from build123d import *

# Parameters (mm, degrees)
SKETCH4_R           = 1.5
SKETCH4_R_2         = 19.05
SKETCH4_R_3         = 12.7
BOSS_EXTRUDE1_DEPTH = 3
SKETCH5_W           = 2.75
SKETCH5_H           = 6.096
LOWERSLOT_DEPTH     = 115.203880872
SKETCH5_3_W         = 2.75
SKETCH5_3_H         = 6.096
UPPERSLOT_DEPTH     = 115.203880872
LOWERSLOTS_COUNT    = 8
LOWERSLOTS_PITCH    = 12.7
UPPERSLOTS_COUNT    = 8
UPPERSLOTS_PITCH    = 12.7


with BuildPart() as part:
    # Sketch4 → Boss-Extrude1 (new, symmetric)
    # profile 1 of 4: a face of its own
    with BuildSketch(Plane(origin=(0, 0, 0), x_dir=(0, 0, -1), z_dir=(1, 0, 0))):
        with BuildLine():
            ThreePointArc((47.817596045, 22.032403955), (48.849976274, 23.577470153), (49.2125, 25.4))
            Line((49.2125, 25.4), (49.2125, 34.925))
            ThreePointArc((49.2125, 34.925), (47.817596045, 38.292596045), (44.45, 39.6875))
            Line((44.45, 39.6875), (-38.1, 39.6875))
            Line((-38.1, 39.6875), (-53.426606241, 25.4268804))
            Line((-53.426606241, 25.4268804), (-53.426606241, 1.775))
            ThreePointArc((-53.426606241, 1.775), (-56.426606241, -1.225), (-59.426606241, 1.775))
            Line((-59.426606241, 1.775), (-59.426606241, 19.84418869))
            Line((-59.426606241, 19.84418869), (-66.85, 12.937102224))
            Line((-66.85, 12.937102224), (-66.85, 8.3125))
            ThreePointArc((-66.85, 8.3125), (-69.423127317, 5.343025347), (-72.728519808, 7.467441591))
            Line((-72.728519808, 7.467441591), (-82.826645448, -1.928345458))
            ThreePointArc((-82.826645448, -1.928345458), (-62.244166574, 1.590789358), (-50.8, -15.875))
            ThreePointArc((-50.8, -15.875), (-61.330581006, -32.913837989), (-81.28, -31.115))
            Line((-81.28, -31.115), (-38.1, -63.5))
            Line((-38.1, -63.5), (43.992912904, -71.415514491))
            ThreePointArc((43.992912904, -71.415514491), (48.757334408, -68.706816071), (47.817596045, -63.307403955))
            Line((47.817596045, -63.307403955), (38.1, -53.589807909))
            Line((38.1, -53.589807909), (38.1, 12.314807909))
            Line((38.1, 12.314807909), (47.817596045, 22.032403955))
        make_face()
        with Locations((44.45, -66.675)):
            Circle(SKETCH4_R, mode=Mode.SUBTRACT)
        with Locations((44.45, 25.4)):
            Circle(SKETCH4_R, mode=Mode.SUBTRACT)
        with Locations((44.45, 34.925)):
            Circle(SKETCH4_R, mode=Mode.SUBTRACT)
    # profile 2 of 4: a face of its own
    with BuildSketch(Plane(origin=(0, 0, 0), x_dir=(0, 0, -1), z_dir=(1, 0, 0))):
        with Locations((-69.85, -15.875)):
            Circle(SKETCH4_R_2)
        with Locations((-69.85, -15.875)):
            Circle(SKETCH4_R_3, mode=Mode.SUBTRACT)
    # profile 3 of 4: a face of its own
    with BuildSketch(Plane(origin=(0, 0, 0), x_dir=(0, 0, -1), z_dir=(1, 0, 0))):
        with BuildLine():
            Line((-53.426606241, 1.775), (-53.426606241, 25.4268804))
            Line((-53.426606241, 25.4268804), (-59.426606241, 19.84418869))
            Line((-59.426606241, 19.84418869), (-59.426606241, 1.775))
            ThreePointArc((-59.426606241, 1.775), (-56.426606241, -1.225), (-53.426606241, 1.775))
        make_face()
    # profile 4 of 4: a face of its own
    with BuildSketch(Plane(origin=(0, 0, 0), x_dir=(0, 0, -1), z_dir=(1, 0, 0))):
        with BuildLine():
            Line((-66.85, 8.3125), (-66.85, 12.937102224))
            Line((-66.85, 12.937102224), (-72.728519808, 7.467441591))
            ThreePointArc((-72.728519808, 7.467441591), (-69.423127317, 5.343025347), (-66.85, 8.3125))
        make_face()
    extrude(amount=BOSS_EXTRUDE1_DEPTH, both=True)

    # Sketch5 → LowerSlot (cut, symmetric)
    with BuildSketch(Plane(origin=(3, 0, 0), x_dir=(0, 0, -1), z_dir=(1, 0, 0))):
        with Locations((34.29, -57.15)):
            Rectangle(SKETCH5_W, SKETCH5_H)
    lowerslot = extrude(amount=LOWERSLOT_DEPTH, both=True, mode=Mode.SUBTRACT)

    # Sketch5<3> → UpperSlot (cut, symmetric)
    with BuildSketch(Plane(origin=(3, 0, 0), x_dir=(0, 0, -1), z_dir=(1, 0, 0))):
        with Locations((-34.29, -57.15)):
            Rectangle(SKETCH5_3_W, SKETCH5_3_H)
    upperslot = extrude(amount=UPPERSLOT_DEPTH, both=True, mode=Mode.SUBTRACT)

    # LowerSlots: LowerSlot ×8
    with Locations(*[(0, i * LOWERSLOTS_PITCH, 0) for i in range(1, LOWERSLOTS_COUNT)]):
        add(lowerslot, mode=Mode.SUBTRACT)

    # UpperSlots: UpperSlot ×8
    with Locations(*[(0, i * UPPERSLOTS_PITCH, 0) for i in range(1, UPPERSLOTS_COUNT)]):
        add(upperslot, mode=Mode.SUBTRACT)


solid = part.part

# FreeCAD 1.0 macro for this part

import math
import FreeCAD as App
import Part
import Sketcher
Q = App.Units.Quantity

doc = App.newDocument("Part")
body = doc.addObject("PartDesign::Body", "Body")

# Sketch on YZ plane
sketch1 = doc.addObject("Sketcher::SketchObject", "Sketch")
body.addObject(sketch1)
sketch1.AttachmentSupport = (doc.YZ_Plane, [""])
sketch1.MapMode = "FlatFace"
sketch1.addGeometry(Part.ArcOfCircle(Part.Circle(App.Vector(25.4, -44.5, 0), App.Vector(0, 0, 1), 4.8), math.radians(-135), math.radians(-90)), False)
sketch1.addGeometry(Part.LineSegment(App.Vector(25.4, -49.2, 0), App.Vector(34.9, -49.2, 0)), False)
sketch1.addGeometry(Part.ArcOfCircle(Part.Circle(App.Vector(34.9, -44.4, 0), App.Vector(0, 0, 1), 4.8), math.radians(-90), math.radians(0)), False)
sketch1.addGeometry(Part.LineSegment(App.Vector(39.7, -44.5, 0), App.Vector(39.7, 38.1, 0)), False)
sketch1.addGeometry(Part.LineSegment(App.Vector(39.7, 38.1, 0), App.Vector(25.4, 53.4, 0)), False)
sketch1.addGeometry(Part.LineSegment(App.Vector(25.4, 53.4, 0), App.Vector(19.8, 59.4, 0)), False)
sketch1.addGeometry(Part.LineSegment(App.Vector(19.8, 59.4, 0), App.Vector(12.9, 66.8, 0)), False)
sketch1.addGeometry(Part.LineSegment(App.Vector(12.9, 66.8, 0), App.Vector(7.5, 72.7, 0)), False)
sketch1.addGeometry(Part.LineSegment(App.Vector(7.5, 72.7, 0), App.Vector(-1.9, 82.8, 0)), False)
sketch1.addGeometry(Part.ArcOfCircle(Part.Circle(App.Vector(-15.9, 69.8, 0), App.Vector(0, 0, 1), 19.1), math.radians(43), math.radians(143)), False)
sketch1.addGeometry(Part.LineSegment(App.Vector(-31.1, 81.3, 0), App.Vector(-63.5, 38.1, 0)), False)
sketch1.addGeometry(Part.LineSegment(App.Vector(-63.5, 38.1, 0), App.Vector(-71.4, -44, 0)), False)
sketch1.addGeometry(Part.ArcOfCircle(Part.Circle(App.Vector(-66.7, -44.5, 0), App.Vector(0, 0, 1), 4.8), math.radians(174), math.radians(315)), False)
sketch1.addGeometry(Part.LineSegment(App.Vector(-63.3, -47.8, 0), App.Vector(-53.6, -38.1, 0)), False)
sketch1.addGeometry(Part.LineSegment(App.Vector(-53.6, -38.1, 0), App.Vector(12.3, -38.1, 0)), False)
sketch1.addGeometry(Part.LineSegment(App.Vector(12.3, -38.1, 0), App.Vector(22, -47.8, 0)), False)
sketch1.addGeometry(Part.Circle(App.Vector(-66.7, -44.5, 0), App.Vector(0, 0, 1), 1.5), False)
sketch1.addGeometry(Part.Circle(App.Vector(25.4, -44.5, 0), App.Vector(0, 0, 1), 1.5), False)
sketch1.addGeometry(Part.Circle(App.Vector(34.9, -44.5, 0), App.Vector(0, 0, 1), 1.5), False)
sketch1.addGeometry(Part.Circle(App.Vector(-15.9, 69.8, 0), App.Vector(0, 0, 1), 12.7), False)
sketch1.addConstraint(Sketcher.Constraint("Tangent", 0, 2, 1, 1))
sketch1.addConstraint(Sketcher.Constraint("Tangent", 1, 2, 2, 1))
sketch1.addConstraint(Sketcher.Constraint("Tangent", 2, 2, 3, 1))
sketch1.addConstraint(Sketcher.Constraint("Coincident", 3, 2, 4, 1))
sketch1.addConstraint(Sketcher.Constraint("Coincident", 4, 2, 5, 1))
sketch1.addConstraint(Sketcher.Constraint("Coincident", 5, 2, 6, 1))
sketch1.addConstraint(Sketcher.Constraint("Coincident", 6, 2, 7, 1))
sketch1.addConstraint(Sketcher.Constraint("Coincident", 7, 2, 8, 1))
sketch1.addConstraint(Sketcher.Constraint("Tangent", 8, 2, 9, 1))
sketch1.addConstraint(Sketcher.Constraint("Tangent", 9, 2, 10, 1))
sketch1.addConstraint(Sketcher.Constraint("Coincident", 10, 2, 11, 1))
sketch1.addConstraint(Sketcher.Constraint("Tangent", 11, 2, 12, 1))
sketch1.addConstraint(Sketcher.Constraint("Tangent", 12, 2, 13, 1))
sketch1.addConstraint(Sketcher.Constraint("Coincident", 13, 2, 14, 1))
sketch1.addConstraint(Sketcher.Constraint("Coincident", 14, 2, 15, 1))
sketch1.addConstraint(Sketcher.Constraint("Tangent", 15, 2, 0, 1))
sketch1.addConstraint(Sketcher.Constraint("Horizontal", 1))
sketch1.addConstraint(Sketcher.Constraint("Vertical", 3))
sketch1.addConstraint(Sketcher.Constraint("Horizontal", 14))
sketch1.addConstraint(Sketcher.Constraint("Coincident", 16, 3, 12, 3))
sketch1.addConstraint(Sketcher.Constraint("Coincident", 17, 3, 0, 3))
sketch1.addConstraint(Sketcher.Constraint("Coincident", 18, 3, 2, 3))
sketch1.addConstraint(Sketcher.Constraint("Coincident", 19, 3, 9, 3))
sketch1.addConstraint(Sketcher.Constraint("Equal", 0, 2))
sketch1.addConstraint(Sketcher.Constraint("Equal", 2, 12))
sketch1.addConstraint(Sketcher.Constraint("Equal", 16, 17))
sketch1.addConstraint(Sketcher.Constraint("Equal", 17, 18))
sketch1.addConstraint(Sketcher.Constraint("Parallel", 4, 5))
sketch1.addConstraint(Sketcher.Constraint("Parallel", 5, 6))
sketch1.addConstraint(Sketcher.Constraint("Parallel", 6, 7))
sketch1.addConstraint(Sketcher.Constraint("Parallel", 7, 8))
sketch1.addConstraint(Sketcher.Constraint("Perpendicular", 13, 15))
sketch1.addConstraint(Sketcher.Constraint("Horizontal", 2, 3, 12, 3))
sketch1.addConstraint(Sketcher.Constraint("Horizontal", 3, 2, 10, 2))
sketch1.addConstraint(Sketcher.Constraint("Horizontal", 12, 2, 15, 2))
sketch1.addConstraint(Sketcher.Constraint("Diameter", 19, Q("1 in")))
sketch1.addConstraint(Sketcher.Constraint("Radius", 9, Q("0.75 in")))
sketch1.addConstraint(Sketcher.Constraint("DistanceX", -1, 1, 0, 3, Q("1 in")))
sketch1.addConstraint(Sketcher.Constraint("Radius", 0, Q("0.1875 in")))
sketch1.addConstraint(Sketcher.Constraint("DistanceX", 9, 3, 2, 3, Q("2 in")))
sketch1.addConstraint(Sketcher.Constraint("DistanceX", 12, 3, 2, 3, Q("4 in")))
sketch1.addConstraint(Sketcher.Constraint("DistanceY", 13, 2, 10, 2, Q("3 in")))
sketch1.addConstraint(Sketcher.Constraint("DistanceY", 3, 1, 3, 2, Q("3.25 in")))
sketch1.addConstraint(Sketcher.Constraint("DistanceY", -1, 1, 3, 2, Q("1.5 in")))
sketch1.addConstraint(Sketcher.Constraint("DistanceY", -1, 1, 9, 2, Q("3.2 in")))
sketch1.addConstraint(Sketcher.Constraint("DistanceX", 10, 2, -1, 1, Q("2.5 in")))
sketch1.addConstraint(Sketcher.Constraint("DistanceY", 0, 3, 9, 3, Q("4.5 in")))
sketch1.addConstraint(Sketcher.Constraint("Diameter", 16, 3.0))
sketch1.addConstraint(Sketcher.Constraint("DistanceY", -1, 1, 6, 2, 66.85))
sketch1.addConstraint(Sketcher.Constraint("DistanceY", 4, 2, 5, 2, 6.0))
sketch1.addConstraint(Sketcher.Constraint("Distance", 7, 8.029582))
sketch1.addConstraint(Sketcher.Constraint("DistanceX", -1, 1, 4, 2, 25.42688))
pad1 = doc.addObject("PartDesign::Pad", "Pad")
body.addObject(pad1)
pad1.Profile = sketch1
pad1.Length = 6
pad1.Midplane = True

# Sketch on YZ plane
sketch2 = doc.addObject("Sketcher::SketchObject", "Sketch001")
body.addObject(sketch2)
sketch2.AttachmentSupport = (doc.YZ_Plane, [""])
sketch2.MapMode = "FlatFace"
sketch2.AttachmentOffset = App.Placement(App.Vector(0, 0, 3), App.Rotation())
sketch2.addGeometry(Part.LineSegment(App.Vector(-54.1, -32.9, 0), App.Vector(-60.2, -32.9, 0)), False)
sketch2.addGeometry(Part.LineSegment(App.Vector(-60.2, -32.9, 0), App.Vector(-60.2, -35.7, 0)), False)
sketch2.addGeometry(Part.LineSegment(App.Vector(-60.2, -35.7, 0), App.Vector(-54.1, -35.7, 0)), False)
sketch2.addGeometry(Part.LineSegment(App.Vector(-54.1, -35.7, 0), App.Vector(-54.1, -32.9, 0)), False)
sketch2.addConstraint(Sketcher.Constraint("Coincident", 0, 2, 1, 1))
sketch2.addConstraint(Sketcher.Constraint("Coincident", 1, 2, 2, 1))
sketch2.addConstraint(Sketcher.Constraint("Coincident", 2, 2, 3, 1))
sketch2.addConstraint(Sketcher.Constraint("Coincident", 3, 2, 0, 1))
sketch2.addConstraint(Sketcher.Constraint("Horizontal", 0))
sketch2.addConstraint(Sketcher.Constraint("Vertical", 1))
sketch2.addConstraint(Sketcher.Constraint("Horizontal", 2))
sketch2.addConstraint(Sketcher.Constraint("Vertical", 3))
sketch2.addConstraint(Sketcher.Constraint("DistanceX", 0, 2, 0, 1, Q("0.24 in")))
sketch2.addConstraint(Sketcher.Constraint("DistanceX", 0, 2, -1, 1, Q("2.37 in")))
sketch2.addConstraint(Sketcher.Constraint("DistanceY", 1, 2, 1, 1, 2.75))
sketch2.addConstraint(Sketcher.Constraint("DistanceY", 0, 2, -1, 1, 32.915))
pocket1 = doc.addObject("PartDesign::Pocket", "Pocket")
body.addObject(pocket1)
pocket1.Profile = sketch2
pocket1.Length = 230.407762
pocket1.Midplane = True

# Sketch on YZ plane
sketch3 = doc.addObject("Sketcher::SketchObject", "Sketch002")
body.addObject(sketch3)
sketch3.AttachmentSupport = (doc.YZ_Plane, [""])
sketch3.MapMode = "FlatFace"
sketch3.AttachmentOffset = App.Placement(App.Vector(0, 0, 3), App.Rotation())
sketch3.addGeometry(Part.LineSegment(App.Vector(-54.1, 35.7, 0), App.Vector(-60.2, 35.7, 0)), False)
sketch3.addGeometry(Part.LineSegment(App.Vector(-60.2, 35.7, 0), App.Vector(-60.2, 32.9, 0)), False)
sketch3.addGeometry(Part.LineSegment(App.Vector(-60.2, 32.9, 0), App.Vector(-54.1, 32.9, 0)), False)
sketch3.addGeometry(Part.LineSegment(App.Vector(-54.1, 32.9, 0), App.Vector(-54.1, 35.7, 0)), False)
sketch3.addConstraint(Sketcher.Constraint("Coincident", 0, 2, 1, 1))
sketch3.addConstraint(Sketcher.Constraint("Coincident", 1, 2, 2, 1))
sketch3.addConstraint(Sketcher.Constraint("Coincident", 2, 2, 3, 1))
sketch3.addConstraint(Sketcher.Constraint("Coincident", 3, 2, 0, 1))
sketch3.addConstraint(Sketcher.Constraint("Horizontal", 0))
sketch3.addConstraint(Sketcher.Constraint("Vertical", 1))
sketch3.addConstraint(Sketcher.Constraint("Horizontal", 2))
sketch3.addConstraint(Sketcher.Constraint("Vertical", 3))
sketch3.addConstraint(Sketcher.Constraint("DistanceX", 0, 2, 0, 1, Q("0.24 in")))
sketch3.addConstraint(Sketcher.Constraint("DistanceX", 0, 2, -1, 1, Q("2.37 in")))
sketch3.addConstraint(Sketcher.Constraint("DistanceY", 1, 2, 1, 1, 2.75))
sketch3.addConstraint(Sketcher.Constraint("DistanceY", -1, 1, 0, 2, 35.665))
pocket2 = doc.addObject("PartDesign::Pocket", "Pocket001")
body.addObject(pocket2)
pocket2.Profile = sketch3
pocket2.Length = 230.407762
pocket2.Midplane = True
doc.recompute()

linearpattern = doc.addObject("PartDesign::LinearPattern", "LinearPattern")
body.addObject(linearpattern)
linearpattern.Originals = [pocket1]
linearpattern.Direction = (doc.Y_Axis, [""])
linearpattern.Mode = "offset"
linearpattern.Offset = Q("0.5 in")
linearpattern.Occurrences = 8
body.Tip = linearpattern
doc.recompute()

linearpattern2 = doc.addObject("PartDesign::LinearPattern", "LinearPattern001")
body.addObject(linearpattern2)
linearpattern2.Originals = [pocket2]
linearpattern2.Direction = (doc.Y_Axis, [""])
linearpattern2.Mode = "offset"
linearpattern2.Offset = Q("0.5 in")
linearpattern2.Occurrences = 8
body.Tip = linearpattern2

doc.recompute()
